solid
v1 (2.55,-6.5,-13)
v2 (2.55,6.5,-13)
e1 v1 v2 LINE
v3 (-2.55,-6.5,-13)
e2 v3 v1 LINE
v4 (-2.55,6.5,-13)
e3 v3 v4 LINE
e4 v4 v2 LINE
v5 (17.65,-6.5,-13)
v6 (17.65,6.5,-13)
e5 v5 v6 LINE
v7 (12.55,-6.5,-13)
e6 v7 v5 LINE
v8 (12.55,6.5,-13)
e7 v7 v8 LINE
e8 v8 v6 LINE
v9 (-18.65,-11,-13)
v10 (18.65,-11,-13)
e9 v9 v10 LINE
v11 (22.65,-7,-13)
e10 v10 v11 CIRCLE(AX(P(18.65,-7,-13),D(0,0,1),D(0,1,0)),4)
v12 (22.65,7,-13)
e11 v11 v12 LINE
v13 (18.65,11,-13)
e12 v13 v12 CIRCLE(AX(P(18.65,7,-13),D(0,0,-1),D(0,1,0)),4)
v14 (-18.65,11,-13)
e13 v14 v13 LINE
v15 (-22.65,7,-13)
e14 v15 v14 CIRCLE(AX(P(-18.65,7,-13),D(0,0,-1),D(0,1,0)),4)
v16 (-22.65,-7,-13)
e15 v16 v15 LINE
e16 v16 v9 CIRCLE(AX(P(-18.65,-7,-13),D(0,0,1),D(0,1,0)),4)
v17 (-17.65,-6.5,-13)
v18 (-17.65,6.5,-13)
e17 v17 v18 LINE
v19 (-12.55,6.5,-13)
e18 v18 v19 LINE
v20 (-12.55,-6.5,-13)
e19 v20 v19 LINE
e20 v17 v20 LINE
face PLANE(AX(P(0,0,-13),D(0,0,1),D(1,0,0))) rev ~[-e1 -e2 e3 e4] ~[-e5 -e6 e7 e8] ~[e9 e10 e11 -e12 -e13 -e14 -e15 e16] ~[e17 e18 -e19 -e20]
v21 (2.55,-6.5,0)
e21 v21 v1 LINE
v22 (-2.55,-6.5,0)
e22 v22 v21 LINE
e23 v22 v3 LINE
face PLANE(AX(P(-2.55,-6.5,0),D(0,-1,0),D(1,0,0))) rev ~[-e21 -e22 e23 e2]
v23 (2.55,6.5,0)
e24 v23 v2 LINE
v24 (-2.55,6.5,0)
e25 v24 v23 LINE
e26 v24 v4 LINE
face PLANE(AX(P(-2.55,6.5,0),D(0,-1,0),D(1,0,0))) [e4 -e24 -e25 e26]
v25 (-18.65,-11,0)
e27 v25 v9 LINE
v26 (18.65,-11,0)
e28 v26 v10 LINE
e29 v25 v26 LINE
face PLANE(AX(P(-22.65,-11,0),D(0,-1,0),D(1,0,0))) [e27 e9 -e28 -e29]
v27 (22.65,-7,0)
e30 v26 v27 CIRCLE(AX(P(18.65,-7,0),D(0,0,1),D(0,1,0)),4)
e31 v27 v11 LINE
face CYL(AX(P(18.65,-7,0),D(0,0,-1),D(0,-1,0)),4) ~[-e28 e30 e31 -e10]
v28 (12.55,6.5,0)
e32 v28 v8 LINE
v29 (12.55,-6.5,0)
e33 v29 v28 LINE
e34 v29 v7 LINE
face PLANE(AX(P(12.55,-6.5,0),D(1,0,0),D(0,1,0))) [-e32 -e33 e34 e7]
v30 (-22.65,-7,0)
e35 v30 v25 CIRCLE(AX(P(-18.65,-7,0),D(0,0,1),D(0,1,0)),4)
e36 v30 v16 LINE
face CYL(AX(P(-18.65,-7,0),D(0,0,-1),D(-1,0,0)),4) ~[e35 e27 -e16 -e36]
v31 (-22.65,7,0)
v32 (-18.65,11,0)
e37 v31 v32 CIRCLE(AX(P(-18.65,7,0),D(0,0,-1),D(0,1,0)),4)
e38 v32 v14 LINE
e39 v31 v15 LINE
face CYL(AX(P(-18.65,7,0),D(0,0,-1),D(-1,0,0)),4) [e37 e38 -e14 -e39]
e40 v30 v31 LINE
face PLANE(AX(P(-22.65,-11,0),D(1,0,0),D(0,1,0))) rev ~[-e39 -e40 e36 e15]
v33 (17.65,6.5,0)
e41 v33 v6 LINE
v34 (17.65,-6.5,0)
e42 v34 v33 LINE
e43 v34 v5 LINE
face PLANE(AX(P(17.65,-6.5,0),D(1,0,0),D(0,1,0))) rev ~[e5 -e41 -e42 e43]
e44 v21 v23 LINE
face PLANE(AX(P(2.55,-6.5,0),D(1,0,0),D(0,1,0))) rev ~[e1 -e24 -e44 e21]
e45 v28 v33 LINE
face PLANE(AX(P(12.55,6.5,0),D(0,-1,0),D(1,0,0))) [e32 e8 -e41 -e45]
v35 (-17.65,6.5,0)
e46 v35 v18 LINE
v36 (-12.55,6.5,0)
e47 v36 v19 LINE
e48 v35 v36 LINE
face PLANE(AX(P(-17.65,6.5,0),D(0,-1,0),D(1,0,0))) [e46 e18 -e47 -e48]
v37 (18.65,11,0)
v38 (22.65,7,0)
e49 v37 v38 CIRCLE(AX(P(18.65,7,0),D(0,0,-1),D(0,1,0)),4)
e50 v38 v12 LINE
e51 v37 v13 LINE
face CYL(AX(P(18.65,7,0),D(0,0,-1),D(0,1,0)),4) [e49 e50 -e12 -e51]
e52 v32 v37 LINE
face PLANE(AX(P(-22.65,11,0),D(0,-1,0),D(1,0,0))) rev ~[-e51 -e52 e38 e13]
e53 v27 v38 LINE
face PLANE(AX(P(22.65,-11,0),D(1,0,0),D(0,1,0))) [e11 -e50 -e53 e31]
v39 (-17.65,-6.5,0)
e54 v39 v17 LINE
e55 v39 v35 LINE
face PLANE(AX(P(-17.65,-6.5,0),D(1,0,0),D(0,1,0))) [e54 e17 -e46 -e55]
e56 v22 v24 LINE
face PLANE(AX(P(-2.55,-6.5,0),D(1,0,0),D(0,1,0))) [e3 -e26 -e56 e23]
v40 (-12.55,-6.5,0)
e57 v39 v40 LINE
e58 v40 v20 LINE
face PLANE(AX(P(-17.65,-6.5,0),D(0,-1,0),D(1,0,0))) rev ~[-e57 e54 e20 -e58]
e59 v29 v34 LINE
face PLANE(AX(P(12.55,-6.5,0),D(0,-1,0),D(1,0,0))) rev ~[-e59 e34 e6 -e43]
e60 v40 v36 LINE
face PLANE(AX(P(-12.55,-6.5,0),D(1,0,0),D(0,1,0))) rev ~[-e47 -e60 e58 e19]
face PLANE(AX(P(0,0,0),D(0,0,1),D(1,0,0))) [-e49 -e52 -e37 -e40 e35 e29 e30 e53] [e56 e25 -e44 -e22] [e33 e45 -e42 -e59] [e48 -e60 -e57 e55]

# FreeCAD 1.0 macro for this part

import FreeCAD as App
import Part
import Sketcher

V = App.Vector


def edges_at(feature, points):
    """Names of the edges that pass closest to the given points."""
    edges = feature.Shape.Edges
    near = lambda p: min(range(len(edges)), key=lambda i: edges[i].distToShape(Part.Vertex(*p))[0])
    return sorted({f"Edge{near(p) + 1}" for p in points})


def add_polygon(sketch, points):
    """Adds a closed chain of lines whose ends are joined by coincident constraints."""
    first, n = sketch.GeometryCount, len(points)
    for a, b in zip(points, points[1:] + points[:1]):
        sketch.addGeometry(Part.LineSegment(App.Vector(*a, 0), App.Vector(*b, 0)), False)
    for i in range(n):
        sketch.addConstraint(Sketcher.Constraint("Coincident", first + i, 2, first + (i + 1) % n, 1))

doc = App.newDocument("Part")
params = doc.addObject("Spreadsheet::Sheet", "Params")
for row, (alias, value) in enumerate([
    ("sketch1_height", "22 mm"),
    ("sketch1_height2", "13 mm"),
    ("sketch1_width", "45.3 mm"),
    ("sketch1_width2", "5.1 mm"),
    ("pad1_length", "13 mm"),
    ("fillet_radius", "4 mm"),
], start=1):
    params.set(f"A{row}", alias)
    params.set(f"B{row}", "=" + value)
    params.setAlias(f"B{row}", alias)

body = doc.addObject("PartDesign::Body", "Body")

# Sketch on XY plane
sketch1 = body.newObject("Sketcher::SketchObject", "Sketch")
sketch1.AttachmentSupport = (doc.getObject("XY_Plane"), [""])
sketch1.MapMode = "FlatFace"
add_polygon(sketch1, [(-23, 11), (-23, -11), (23, -11), (23, 11)])  # lines 0-3
add_polygon(sketch1, [(-13, -6), (-18, -6), (-18, 6), (-13, 6)])  # lines 4-7
add_polygon(sketch1, [(3, -6), (-3, -6), (-3, 6), (3, 6)])  # lines 8-11
add_polygon(sketch1, [(18, -6), (13, -6), (13, 6), (18, 6)])  # lines 12-15
sketch1.addConstraint(Sketcher.Constraint("Vertical", 0))
sketch1.addConstraint(Sketcher.Constraint("Horizontal", 1))
sketch1.addConstraint(Sketcher.Constraint("Vertical", 2))
sketch1.addConstraint(Sketcher.Constraint("Horizontal", 3))
sketch1.addConstraint(Sketcher.Constraint("Horizontal", 4))
sketch1.addConstraint(Sketcher.Constraint("Vertical", 5))
sketch1.addConstraint(Sketcher.Constraint("Horizontal", 6))
sketch1.addConstraint(Sketcher.Constraint("Vertical", 7))
sketch1.addConstraint(Sketcher.Constraint("Horizontal", 8))
sketch1.addConstraint(Sketcher.Constraint("Vertical", 9))
sketch1.addConstraint(Sketcher.Constraint("Horizontal", 10))
sketch1.addConstraint(Sketcher.Constraint("Vertical", 11))
sketch1.addConstraint(Sketcher.Constraint("Horizontal", 12))
sketch1.addConstraint(Sketcher.Constraint("Vertical", 13))
sketch1.addConstraint(Sketcher.Constraint("Horizontal", 14))
sketch1.addConstraint(Sketcher.Constraint("Vertical", 15))
sketch1.addConstraint(Sketcher.Constraint("Symmetric", 0, 2, 2, 2, -1, 1))
sketch1.addConstraint(Sketcher.Constraint("Symmetric", 8, 2, 10, 2, -1, 1))
sketch1.addConstraint(Sketcher.Constraint("Symmetric", 6, 2, 12, 2, -1, 1))
sketch1.addConstraint(Sketcher.Constraint("Symmetric", 4, 2, 14, 2, -1, 1))
sketch1.addConstraint(Sketcher.Constraint("Horizontal", 7, 2, 8, 2))
sketch1.addConstraint(Sketcher.Constraint("Horizontal", 6, 2, 9, 2))
sketch1.addConstraint(Sketcher.Constraint("Equal", 6, 8))
sketch1.addConstraint(Sketcher.Constraint("DistanceY", 0, 2, 0, 1, 22.0))
sketch1.addConstraint(Sketcher.Constraint("DistanceY", 5, 1, 5, 2, 13.0))
sketch1.addConstraint(Sketcher.Constraint("DistanceX", 1, 1, 1, 2, 45.3))
sketch1.addConstraint(Sketcher.Constraint("DistanceX", 4, 2, 4, 1, 5.1))
sketch1.addConstraint(Sketcher.Constraint("DistanceX", 0, 2, 4, 2, 5.0))
sketch1.setExpression("Constraints[39]", "Params.sketch1_height")
sketch1.setExpression("Constraints[40]", "Params.sketch1_height2")
sketch1.setExpression("Constraints[41]", "Params.sketch1_width")
sketch1.setExpression("Constraints[42]", "Params.sketch1_width2")
pad1 = body.newObject("PartDesign::Pad", "Pad")
pad1.Profile = sketch1
pad1.setExpression("Length", "Params.pad1_length")
pad1.Reversed = True
doc.recompute()

fillet = body.newObject("PartDesign::Fillet", "Fillet")
fillet.Base = (pad1, edges_at(pad1, [
    (-22.65, -11, -6.5),
    (22.65, -11, -6.5),
    (22.65, 11, -6.5),
    (-22.65, 11, -6.5),
]))
fillet.setExpression("Radius", "Params.fillet_radius")

doc.recompute()
